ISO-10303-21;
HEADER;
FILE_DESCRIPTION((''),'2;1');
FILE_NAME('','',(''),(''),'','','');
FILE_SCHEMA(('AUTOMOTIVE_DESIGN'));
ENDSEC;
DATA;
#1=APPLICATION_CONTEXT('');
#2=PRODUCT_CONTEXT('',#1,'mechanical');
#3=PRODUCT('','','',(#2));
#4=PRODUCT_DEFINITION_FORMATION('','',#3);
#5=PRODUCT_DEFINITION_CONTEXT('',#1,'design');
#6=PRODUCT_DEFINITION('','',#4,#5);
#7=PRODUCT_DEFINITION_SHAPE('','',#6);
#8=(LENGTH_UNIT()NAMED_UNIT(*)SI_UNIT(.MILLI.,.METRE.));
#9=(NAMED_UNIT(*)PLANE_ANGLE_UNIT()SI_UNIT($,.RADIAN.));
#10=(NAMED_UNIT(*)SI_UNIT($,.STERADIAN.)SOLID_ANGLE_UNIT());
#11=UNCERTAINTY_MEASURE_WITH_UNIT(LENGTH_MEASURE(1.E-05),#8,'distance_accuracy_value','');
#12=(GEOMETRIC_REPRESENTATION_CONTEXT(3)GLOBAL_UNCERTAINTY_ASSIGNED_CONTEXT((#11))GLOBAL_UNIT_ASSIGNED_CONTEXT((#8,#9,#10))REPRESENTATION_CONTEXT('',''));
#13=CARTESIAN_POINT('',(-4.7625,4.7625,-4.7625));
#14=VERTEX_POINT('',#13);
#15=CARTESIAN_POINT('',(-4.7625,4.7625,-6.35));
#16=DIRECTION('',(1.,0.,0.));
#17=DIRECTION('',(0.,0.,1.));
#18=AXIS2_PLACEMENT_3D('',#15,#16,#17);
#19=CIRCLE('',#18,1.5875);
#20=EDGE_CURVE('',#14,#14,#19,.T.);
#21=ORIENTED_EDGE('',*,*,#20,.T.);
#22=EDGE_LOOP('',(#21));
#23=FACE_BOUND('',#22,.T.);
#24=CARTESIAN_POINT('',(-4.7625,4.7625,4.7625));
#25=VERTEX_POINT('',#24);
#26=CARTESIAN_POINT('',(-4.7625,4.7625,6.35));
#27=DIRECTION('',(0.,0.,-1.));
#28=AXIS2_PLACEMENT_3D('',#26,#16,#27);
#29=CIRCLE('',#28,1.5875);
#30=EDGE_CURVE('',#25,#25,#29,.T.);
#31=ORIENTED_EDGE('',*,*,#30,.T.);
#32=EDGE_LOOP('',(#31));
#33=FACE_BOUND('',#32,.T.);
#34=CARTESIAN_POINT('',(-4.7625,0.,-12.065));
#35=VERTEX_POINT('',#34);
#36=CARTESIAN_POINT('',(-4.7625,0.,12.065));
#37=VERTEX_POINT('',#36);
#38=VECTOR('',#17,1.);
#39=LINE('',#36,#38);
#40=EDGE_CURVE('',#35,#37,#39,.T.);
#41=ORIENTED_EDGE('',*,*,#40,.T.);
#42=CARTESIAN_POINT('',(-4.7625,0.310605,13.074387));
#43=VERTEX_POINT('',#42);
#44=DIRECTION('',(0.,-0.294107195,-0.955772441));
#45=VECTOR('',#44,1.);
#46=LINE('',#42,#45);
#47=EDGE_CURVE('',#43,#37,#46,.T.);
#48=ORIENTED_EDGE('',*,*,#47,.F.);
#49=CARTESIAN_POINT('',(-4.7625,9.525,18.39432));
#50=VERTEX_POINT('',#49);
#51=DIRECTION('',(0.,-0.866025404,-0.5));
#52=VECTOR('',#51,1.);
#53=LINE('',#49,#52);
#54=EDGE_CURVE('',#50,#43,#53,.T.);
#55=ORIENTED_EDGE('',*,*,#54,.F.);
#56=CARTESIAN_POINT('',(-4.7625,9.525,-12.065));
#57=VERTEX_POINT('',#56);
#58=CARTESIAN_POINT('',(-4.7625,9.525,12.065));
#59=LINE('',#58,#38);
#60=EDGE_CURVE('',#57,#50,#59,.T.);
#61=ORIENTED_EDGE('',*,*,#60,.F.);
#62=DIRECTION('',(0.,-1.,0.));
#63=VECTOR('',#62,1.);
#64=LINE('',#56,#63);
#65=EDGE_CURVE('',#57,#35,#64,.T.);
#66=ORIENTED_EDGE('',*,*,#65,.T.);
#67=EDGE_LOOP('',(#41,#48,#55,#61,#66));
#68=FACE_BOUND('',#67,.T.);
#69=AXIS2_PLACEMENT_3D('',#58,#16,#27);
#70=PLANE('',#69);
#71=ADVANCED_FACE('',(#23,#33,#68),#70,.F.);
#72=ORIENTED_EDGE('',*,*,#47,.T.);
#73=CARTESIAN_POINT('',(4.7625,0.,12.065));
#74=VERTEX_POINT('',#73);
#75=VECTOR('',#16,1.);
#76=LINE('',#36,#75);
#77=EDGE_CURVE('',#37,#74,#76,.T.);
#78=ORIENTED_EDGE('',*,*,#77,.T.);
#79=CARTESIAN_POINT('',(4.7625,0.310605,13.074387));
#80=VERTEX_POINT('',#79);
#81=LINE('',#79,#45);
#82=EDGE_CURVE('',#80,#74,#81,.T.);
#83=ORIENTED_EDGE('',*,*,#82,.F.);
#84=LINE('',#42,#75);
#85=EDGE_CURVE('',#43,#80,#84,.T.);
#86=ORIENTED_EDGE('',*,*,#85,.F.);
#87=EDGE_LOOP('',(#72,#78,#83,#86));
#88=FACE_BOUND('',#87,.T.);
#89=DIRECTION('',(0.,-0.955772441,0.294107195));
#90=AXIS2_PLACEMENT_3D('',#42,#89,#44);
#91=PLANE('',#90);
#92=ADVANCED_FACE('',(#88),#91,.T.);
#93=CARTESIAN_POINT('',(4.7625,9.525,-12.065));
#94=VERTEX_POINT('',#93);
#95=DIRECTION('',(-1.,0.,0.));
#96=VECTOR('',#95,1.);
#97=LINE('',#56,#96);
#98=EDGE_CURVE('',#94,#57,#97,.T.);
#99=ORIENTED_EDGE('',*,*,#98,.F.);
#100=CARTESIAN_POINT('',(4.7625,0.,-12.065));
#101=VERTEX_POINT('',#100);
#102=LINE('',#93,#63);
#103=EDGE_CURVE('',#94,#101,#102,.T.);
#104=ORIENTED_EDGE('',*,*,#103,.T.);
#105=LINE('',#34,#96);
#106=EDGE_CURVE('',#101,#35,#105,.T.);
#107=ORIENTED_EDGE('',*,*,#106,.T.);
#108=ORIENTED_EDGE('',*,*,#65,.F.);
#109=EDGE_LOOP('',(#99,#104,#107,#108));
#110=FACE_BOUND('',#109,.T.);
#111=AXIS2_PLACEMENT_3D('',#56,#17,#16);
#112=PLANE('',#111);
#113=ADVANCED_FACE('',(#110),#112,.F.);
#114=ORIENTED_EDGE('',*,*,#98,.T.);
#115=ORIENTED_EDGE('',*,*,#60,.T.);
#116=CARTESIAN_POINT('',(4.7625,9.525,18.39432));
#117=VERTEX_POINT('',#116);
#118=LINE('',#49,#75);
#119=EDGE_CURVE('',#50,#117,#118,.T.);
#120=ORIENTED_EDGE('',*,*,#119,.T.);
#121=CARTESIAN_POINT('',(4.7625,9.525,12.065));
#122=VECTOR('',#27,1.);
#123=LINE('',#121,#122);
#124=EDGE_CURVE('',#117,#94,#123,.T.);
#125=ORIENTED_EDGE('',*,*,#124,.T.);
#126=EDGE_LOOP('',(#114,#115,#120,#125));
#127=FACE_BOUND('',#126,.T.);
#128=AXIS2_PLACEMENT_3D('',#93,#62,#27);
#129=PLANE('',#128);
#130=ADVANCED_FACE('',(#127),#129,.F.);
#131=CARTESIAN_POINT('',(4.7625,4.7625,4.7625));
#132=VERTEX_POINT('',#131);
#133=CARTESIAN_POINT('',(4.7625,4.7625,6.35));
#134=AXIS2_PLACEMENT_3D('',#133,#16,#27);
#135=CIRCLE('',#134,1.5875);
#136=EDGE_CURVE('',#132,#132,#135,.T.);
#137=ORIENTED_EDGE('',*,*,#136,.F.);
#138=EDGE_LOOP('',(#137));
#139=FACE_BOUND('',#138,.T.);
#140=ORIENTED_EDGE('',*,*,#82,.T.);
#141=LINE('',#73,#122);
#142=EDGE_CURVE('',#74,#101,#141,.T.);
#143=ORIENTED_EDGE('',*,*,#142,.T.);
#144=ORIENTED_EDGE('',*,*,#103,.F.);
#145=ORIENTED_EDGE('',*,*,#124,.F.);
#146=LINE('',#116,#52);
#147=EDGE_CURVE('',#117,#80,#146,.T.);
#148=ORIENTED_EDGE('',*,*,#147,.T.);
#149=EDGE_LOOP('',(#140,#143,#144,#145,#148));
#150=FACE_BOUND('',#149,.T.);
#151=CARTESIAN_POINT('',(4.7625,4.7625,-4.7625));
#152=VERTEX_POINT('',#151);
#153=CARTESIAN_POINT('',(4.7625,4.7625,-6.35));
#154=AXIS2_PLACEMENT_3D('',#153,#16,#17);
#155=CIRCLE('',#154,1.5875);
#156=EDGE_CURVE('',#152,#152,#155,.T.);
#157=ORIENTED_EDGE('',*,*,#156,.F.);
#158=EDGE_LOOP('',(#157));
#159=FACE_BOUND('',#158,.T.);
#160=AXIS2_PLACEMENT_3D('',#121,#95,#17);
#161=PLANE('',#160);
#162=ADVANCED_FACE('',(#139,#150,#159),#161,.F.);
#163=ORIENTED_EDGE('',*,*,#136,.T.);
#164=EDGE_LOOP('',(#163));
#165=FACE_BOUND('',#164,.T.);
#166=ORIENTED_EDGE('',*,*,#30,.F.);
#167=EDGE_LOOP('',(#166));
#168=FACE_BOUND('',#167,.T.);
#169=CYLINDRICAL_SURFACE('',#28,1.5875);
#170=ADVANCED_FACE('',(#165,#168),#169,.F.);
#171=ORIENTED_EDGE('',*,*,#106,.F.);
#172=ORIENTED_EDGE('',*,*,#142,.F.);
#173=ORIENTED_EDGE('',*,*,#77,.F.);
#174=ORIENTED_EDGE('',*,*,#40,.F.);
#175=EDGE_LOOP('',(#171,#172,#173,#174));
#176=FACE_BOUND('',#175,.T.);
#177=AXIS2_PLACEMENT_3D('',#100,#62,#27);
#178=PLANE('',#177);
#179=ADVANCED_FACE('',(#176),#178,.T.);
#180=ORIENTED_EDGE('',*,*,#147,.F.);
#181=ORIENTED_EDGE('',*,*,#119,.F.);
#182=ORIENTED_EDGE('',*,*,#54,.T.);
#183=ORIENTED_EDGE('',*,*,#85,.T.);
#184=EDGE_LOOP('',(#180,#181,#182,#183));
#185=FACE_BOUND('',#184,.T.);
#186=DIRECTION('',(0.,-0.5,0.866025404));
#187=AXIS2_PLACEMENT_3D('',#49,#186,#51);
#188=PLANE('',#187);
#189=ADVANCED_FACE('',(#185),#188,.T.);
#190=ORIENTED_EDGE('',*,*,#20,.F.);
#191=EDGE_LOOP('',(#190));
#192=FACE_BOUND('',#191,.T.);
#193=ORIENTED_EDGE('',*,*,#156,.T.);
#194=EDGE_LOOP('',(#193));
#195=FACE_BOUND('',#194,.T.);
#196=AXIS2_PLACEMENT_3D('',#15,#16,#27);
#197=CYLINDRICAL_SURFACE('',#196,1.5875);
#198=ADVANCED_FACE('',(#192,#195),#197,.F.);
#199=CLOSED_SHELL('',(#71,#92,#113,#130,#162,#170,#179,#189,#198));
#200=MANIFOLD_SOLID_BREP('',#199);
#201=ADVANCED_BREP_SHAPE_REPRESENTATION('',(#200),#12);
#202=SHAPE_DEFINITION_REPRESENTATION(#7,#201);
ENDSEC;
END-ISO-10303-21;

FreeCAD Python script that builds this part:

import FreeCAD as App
import Part
import Sketcher

V = App.Vector
Q = App.Units.Quantity

doc = App.newDocument("Part")
body = doc.addObject("PartDesign::Body", "Body")

# Sketch on XZ plane
sketch1 = doc.addObject("Sketcher::SketchObject", "Sketch")
body.addObject(sketch1)
sketch1.AttachmentSupport = (doc.XZ_Plane, [""])
sketch1.MapMode = "FlatFace"
sketch1.addGeometry([
    Part.LineSegment(V(-5, -12, 0), V(-5, 12, 0)),
    Part.LineSegment(V(-5, 12, 0), V(5, 12, 0)),
    Part.LineSegment(V(5, 12, 0), V(5, -12, 0)),
    Part.LineSegment(V(5, -12, 0), V(-5, -12, 0)),
], False)
sketch1.addConstraint([
    Sketcher.Constraint("Coincident", 0, 2, 1, 1),
    Sketcher.Constraint("Coincident", 1, 2, 2, 1),
    Sketcher.Constraint("Coincident", 2, 2, 3, 1),
    Sketcher.Constraint("Coincident", 3, 2, 0, 1),
    Sketcher.Constraint("Vertical", 0),
    Sketcher.Constraint("Horizontal", 1),
    Sketcher.Constraint("Vertical", 2),
    Sketcher.Constraint("Horizontal", 3),
    Sketcher.Constraint("Symmetric", 0, 2, 2, 2, -1, 1),
    Sketcher.Constraint("DistanceY", 0, 1, 0, 2, Q("0.95 in")),
    Sketcher.Constraint("DistanceX", 1, 1, 1, 2, Q("0.375 in")),
])
pad1 = doc.addObject("PartDesign::Pad", "Pad")
body.addObject(pad1)
pad1.Profile = sketch1
pad1.Length = Q("0.375 in")
pad1.Reversed = True

# Sketch on YZ plane
sketch2 = doc.addObject("Sketcher::SketchObject", "Sketch001")
body.addObject(sketch2)
sketch2.AttachmentSupport = (doc.YZ_Plane, [""])
sketch2.MapMode = "FlatFace"
sketch2.AttachmentOffset = App.Placement(V(0, 0, 0.1875 * 25.4), App.Rotation())
sketch2.addGeometry([
    Part.Circle(V(4.8, 6.3, 0), V(0, 0, 1), 1.6),
    Part.Circle(V(4.8, -6.3, 0), V(0, 0, 1), 1.6),
], False)
sketch2.addConstraint([
    Sketcher.Constraint("Equal", 0, 1),
    Sketcher.Constraint("Symmetric", 0, 3, 1, 3, -1),
    Sketcher.Constraint("Diameter", 0, Q("0.125 in")),
    Sketcher.Constraint("DistanceY", 1, 3, 0, 3, Q("0.5 in")),
    Sketcher.Constraint("DistanceX", -1, 1, 0, 3, Q("0.1875 in")),
])
pocket1 = doc.addObject("PartDesign::Pocket", "Pocket")
body.addObject(pocket1)
pocket1.Profile = sketch2
pocket1.Type = "ThroughAll"

# Sketch on YZ plane
sketch3 = doc.addObject("Sketcher::SketchObject", "Sketch002")
body.addObject(sketch3)
sketch3.AttachmentSupport = (doc.YZ_Plane, [""])
sketch3.MapMode = "FlatFace"
sketch3.AttachmentOffset = App.Placement(V(0, 0, 0.1875 * 25.4), App.Rotation())
sketch3.addGeometry([
    Part.LineSegment(V(9.5, 12.1, 0), V(9.5, 18.4, 0)),
    Part.LineSegment(V(9.5, 18.4, 0), V(0.3, 13.1, 0)),
    Part.LineSegment(V(0.3, 13.1, 0), V(0, 12.1, 0)),
    Part.LineSegment(V(0, 12.1, 0), V(9.5, 12.1, 0)),
], False)
sketch3.addConstraint([
    Sketcher.Constraint("Coincident", 0, 2, 1, 1),
    Sketcher.Constraint("Coincident", 1, 2, 2, 1),
    Sketcher.Constraint("Coincident", 2, 2, 3, 1),
    Sketcher.Constraint("Coincident", 3, 2, 0, 1),
    Sketcher.Constraint("Vertical", 0),
    Sketcher.Constraint("Horizontal", 3),
    Sketcher.Constraint("PointOnObject", 2, 2, -2),
    Sketcher.Constraint("Angle", 1, Q("-150 deg")),
    Sketcher.Constraint("DistanceX", 3, 1, 3, 2, Q("0.375 in")),
    Sketcher.Constraint("DistanceY", -1, 1, 2, 2, Q("0.475 in")),
    Sketcher.Constraint("DistanceY", 0, 1, 0, 2, Q("6.32932 mm")),
    Sketcher.Constraint("Distance", 1, Q("10.639866 mm")),
])
pad2 = doc.addObject("PartDesign::Pad", "Pad001")
body.addObject(pad2)
pad2.Profile = sketch3
pad2.Length = Q("0.375 in")
pad2.Reversed = True

doc.recompute()
